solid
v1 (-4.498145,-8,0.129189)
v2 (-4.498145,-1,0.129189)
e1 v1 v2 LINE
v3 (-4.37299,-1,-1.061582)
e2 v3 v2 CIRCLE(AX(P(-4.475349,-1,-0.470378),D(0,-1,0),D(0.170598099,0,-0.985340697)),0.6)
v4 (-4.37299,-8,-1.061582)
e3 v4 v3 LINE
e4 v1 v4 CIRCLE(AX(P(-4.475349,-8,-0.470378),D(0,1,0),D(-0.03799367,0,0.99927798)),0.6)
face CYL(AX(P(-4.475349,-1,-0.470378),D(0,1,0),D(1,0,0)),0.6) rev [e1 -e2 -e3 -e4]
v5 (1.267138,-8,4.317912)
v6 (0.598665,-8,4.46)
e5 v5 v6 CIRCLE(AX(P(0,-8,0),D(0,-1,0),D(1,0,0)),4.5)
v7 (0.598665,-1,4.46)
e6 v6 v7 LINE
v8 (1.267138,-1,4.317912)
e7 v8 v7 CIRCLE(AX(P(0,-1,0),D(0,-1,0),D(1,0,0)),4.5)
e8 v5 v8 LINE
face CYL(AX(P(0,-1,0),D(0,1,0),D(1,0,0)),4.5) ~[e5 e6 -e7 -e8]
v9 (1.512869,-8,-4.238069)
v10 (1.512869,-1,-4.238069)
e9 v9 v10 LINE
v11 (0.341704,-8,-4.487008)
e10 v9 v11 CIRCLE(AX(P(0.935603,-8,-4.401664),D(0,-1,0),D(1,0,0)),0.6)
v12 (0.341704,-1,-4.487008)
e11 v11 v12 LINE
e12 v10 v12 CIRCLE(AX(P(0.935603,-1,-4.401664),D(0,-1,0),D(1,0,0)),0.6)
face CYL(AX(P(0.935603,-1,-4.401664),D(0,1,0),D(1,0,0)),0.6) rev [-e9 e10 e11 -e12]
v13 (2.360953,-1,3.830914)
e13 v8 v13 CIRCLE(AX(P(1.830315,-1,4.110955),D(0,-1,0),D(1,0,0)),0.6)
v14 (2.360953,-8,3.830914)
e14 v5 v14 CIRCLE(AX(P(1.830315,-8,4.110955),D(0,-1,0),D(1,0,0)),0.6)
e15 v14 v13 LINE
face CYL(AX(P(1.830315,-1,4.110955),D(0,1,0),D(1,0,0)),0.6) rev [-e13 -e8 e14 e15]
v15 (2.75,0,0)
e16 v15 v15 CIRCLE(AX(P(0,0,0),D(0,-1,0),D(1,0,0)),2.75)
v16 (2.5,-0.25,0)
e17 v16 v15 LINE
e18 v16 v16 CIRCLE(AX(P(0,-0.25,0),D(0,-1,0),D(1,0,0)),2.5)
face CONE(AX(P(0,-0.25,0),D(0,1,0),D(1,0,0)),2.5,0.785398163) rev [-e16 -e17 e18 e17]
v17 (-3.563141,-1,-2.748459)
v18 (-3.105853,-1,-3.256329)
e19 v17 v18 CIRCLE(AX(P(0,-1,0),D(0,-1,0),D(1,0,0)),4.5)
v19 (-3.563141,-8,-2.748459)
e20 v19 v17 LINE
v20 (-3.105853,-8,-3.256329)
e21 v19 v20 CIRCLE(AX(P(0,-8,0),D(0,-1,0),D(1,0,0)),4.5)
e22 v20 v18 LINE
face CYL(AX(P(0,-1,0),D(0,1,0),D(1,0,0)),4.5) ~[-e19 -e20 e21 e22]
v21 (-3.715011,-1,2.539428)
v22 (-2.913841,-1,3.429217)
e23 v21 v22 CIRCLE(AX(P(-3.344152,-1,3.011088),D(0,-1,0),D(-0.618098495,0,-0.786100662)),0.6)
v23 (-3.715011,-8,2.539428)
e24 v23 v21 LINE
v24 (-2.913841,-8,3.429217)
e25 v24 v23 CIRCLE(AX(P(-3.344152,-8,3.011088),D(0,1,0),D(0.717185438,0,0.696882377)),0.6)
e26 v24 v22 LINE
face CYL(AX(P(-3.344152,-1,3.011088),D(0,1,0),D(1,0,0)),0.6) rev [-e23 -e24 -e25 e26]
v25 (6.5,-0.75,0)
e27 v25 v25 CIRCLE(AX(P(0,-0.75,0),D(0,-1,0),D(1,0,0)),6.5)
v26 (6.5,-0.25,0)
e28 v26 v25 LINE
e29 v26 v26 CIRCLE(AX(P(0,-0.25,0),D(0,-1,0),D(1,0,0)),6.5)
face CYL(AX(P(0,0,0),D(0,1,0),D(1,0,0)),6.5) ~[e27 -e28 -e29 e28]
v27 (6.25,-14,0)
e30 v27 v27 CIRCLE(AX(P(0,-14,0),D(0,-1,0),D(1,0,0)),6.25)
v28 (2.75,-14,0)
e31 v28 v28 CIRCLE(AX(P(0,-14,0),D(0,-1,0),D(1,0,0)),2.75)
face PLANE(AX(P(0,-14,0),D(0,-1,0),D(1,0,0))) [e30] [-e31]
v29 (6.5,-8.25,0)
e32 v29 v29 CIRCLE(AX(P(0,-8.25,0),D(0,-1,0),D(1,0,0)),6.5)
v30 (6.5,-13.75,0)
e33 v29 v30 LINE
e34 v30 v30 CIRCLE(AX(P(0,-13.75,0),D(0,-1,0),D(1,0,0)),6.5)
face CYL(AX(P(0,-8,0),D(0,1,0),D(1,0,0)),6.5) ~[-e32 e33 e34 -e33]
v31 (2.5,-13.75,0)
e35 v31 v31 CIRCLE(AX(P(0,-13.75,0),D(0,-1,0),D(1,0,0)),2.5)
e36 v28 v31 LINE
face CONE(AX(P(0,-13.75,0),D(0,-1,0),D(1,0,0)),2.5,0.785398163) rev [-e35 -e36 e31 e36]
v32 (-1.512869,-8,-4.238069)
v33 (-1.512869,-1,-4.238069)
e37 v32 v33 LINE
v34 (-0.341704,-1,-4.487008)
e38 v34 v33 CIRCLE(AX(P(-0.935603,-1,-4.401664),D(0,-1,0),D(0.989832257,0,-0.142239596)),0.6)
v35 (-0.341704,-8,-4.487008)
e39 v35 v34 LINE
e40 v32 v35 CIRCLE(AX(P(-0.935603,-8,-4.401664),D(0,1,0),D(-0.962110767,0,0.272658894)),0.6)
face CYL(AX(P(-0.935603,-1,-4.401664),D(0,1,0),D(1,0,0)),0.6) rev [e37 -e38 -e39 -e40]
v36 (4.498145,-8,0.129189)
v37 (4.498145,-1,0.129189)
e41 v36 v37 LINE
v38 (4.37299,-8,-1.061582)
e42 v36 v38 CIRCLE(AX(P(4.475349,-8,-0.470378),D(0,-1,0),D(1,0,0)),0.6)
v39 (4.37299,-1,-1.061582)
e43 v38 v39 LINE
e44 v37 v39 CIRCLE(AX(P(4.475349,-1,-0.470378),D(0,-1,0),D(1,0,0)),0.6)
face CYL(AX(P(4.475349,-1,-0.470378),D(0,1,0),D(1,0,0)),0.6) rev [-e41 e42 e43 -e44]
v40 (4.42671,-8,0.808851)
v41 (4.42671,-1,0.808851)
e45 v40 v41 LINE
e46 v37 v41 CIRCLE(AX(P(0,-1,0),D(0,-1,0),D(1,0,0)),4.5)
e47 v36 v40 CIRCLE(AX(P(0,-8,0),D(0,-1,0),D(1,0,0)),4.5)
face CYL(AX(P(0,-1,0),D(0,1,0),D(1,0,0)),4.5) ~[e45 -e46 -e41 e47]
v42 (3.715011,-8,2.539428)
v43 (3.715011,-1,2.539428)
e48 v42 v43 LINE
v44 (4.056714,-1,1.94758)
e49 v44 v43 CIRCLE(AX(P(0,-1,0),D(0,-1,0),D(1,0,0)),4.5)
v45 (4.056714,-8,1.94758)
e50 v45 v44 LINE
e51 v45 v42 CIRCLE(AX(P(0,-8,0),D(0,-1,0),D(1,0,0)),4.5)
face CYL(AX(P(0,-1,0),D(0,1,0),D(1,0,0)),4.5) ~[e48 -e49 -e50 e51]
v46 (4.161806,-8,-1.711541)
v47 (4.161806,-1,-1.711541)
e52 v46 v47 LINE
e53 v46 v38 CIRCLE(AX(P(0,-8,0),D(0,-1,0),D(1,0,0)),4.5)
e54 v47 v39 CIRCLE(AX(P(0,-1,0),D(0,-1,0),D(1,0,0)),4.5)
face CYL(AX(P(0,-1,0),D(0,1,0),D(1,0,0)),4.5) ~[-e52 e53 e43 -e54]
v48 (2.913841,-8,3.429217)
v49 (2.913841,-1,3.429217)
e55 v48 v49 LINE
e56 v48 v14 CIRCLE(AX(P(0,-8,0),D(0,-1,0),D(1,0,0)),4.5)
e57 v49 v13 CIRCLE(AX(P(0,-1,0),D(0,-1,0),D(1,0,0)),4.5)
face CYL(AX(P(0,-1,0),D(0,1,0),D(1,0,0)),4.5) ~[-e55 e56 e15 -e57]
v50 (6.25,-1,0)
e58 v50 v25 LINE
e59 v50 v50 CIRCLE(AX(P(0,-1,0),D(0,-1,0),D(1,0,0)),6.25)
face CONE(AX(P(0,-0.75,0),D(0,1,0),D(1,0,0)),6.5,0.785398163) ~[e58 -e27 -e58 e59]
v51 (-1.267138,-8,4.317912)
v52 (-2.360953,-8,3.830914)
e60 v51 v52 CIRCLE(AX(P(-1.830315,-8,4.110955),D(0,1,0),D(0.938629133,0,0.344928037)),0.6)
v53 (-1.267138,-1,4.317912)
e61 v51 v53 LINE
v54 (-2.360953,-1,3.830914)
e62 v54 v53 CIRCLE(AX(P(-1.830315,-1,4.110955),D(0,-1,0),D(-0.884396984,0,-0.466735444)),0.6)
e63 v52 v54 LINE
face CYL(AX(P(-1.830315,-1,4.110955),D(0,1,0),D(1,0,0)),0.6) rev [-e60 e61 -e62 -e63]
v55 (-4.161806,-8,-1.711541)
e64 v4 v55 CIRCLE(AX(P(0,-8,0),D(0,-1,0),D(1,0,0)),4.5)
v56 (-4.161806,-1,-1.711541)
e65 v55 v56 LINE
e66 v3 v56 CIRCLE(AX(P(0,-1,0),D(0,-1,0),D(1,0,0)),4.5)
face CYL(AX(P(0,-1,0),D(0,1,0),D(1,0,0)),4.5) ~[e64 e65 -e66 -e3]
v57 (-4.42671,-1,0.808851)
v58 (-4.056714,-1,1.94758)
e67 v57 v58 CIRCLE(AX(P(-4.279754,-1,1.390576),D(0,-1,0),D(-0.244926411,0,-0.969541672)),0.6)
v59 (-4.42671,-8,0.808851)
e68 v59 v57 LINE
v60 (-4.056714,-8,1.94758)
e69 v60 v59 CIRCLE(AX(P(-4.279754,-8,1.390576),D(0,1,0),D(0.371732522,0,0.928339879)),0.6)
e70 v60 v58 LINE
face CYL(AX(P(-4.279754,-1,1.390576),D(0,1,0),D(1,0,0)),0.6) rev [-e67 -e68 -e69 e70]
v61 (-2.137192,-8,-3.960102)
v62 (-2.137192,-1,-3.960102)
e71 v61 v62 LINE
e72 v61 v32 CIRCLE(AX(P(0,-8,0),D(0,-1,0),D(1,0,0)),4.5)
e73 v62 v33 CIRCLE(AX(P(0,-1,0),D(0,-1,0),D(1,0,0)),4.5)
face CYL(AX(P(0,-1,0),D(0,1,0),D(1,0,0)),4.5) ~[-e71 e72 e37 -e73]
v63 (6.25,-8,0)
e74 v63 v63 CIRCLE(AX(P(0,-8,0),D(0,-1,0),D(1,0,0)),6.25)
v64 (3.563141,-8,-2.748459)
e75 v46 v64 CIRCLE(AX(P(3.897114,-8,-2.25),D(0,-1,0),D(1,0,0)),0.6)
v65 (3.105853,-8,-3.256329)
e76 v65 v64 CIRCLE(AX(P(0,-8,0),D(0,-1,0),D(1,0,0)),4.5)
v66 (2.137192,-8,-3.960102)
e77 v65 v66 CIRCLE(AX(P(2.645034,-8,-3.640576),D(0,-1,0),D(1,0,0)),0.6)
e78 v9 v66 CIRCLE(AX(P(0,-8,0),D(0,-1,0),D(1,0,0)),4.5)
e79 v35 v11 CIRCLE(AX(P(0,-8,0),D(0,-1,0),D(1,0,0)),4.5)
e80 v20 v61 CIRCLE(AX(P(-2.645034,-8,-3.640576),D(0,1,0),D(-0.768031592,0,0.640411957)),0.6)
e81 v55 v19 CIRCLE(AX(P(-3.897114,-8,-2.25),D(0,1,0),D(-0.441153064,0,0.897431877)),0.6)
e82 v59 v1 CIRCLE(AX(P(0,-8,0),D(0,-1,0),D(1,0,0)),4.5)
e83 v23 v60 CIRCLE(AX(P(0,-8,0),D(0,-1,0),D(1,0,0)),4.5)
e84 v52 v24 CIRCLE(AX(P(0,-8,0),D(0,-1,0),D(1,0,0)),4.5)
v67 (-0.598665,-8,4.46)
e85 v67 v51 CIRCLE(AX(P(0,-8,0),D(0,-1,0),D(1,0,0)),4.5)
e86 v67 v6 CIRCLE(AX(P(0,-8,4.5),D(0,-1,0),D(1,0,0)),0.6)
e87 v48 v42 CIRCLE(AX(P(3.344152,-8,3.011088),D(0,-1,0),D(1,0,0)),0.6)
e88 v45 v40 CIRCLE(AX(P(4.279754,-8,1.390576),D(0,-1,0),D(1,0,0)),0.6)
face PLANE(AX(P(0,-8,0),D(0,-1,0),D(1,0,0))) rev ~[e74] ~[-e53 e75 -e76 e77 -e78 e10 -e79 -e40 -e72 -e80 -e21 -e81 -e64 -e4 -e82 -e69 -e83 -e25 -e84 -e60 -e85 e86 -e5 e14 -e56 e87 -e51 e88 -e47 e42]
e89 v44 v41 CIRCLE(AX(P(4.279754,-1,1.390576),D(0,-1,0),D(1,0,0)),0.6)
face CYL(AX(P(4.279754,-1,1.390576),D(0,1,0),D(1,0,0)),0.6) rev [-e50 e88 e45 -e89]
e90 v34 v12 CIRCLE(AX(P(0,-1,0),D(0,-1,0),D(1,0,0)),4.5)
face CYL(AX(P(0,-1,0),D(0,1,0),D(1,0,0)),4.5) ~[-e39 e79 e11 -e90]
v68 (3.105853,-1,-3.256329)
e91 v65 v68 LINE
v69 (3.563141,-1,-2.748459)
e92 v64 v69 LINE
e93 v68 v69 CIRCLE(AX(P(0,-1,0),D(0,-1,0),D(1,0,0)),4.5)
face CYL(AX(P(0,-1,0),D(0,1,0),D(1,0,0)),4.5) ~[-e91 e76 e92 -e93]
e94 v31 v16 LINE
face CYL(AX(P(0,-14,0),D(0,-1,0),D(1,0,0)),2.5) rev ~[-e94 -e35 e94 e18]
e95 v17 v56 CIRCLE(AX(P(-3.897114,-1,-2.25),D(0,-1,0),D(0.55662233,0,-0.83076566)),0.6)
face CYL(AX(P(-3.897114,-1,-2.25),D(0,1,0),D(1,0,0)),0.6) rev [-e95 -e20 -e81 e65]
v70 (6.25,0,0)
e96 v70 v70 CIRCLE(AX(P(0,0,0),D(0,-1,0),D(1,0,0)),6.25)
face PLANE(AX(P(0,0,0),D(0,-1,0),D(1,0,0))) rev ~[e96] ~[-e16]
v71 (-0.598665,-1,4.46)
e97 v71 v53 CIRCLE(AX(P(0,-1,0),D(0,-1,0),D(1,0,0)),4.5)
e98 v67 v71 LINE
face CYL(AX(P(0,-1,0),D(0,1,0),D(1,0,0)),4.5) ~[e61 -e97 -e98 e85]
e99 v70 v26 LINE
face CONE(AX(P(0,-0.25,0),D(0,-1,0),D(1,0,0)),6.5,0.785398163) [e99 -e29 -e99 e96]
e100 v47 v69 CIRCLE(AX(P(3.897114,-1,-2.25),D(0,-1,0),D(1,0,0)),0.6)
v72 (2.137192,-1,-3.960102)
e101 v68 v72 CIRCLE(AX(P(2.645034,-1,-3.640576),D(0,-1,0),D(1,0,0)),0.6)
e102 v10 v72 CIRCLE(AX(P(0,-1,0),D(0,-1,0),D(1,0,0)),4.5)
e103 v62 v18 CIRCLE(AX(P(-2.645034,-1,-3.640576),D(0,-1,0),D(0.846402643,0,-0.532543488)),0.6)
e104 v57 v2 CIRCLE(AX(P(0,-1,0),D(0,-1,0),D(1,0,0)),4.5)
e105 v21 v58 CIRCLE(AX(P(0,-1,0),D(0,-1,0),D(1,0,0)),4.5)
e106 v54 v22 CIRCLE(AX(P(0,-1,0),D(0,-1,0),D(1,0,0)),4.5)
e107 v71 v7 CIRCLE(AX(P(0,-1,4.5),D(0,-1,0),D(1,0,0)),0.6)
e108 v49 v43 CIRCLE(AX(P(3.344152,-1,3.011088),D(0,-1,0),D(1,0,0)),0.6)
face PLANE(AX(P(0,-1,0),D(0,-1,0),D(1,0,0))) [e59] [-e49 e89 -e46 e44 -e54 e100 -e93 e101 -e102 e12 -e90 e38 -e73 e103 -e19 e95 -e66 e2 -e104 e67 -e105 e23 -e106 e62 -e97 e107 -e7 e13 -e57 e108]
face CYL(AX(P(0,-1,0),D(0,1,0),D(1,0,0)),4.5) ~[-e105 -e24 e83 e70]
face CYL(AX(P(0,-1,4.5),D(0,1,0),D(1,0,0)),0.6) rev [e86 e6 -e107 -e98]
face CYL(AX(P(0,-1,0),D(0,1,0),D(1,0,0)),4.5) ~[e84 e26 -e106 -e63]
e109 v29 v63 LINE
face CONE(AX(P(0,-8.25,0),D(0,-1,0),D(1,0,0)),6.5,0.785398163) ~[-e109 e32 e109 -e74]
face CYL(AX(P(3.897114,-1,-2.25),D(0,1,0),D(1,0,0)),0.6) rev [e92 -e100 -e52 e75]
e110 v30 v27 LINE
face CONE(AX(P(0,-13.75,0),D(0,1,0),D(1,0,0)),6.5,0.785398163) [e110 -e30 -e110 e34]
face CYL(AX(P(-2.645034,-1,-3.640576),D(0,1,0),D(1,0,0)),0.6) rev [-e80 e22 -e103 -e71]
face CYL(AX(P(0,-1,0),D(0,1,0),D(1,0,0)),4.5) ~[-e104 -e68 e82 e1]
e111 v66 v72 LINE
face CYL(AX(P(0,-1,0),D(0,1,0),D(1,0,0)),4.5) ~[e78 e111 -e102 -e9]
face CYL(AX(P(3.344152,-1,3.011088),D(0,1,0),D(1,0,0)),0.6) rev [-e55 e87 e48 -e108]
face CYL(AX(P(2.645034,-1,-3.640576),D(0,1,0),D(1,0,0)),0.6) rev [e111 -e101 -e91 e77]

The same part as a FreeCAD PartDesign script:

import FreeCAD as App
import Part
import Sketcher


def edges_at(feature, points):
    """Names of the edges that pass closest to the given points."""
    edges = feature.Shape.Edges
    near = lambda p: min(range(len(edges)), key=lambda i: edges[i].distToShape(Part.Vertex(*p))[0])
    return sorted({f"Edge{near(p) + 1}" for p in points})

doc = App.newDocument("Part")
body = doc.addObject("PartDesign::Body", "Body")

sketch1 = doc.addObject("Sketcher::SketchObject", "Sketch")
body.addObject(sketch1)
sketch1.AttachmentSupport = (doc.XZ_Plane, [""])
sketch1.MapMode = "FlatFace"
sketch1.addGeometry(Part.Circle(App.Vector(0, 0, 0), App.Vector(0, 0, 1), 6.5), False)
sketch1.addConstraint(Sketcher.Constraint("Coincident", 0, 3, -1, 1))
sketch1.addConstraint(Sketcher.Constraint("Diameter", 0, 13.0))
pad1 = doc.addObject("PartDesign::Pad", "Pad")
body.addObject(pad1)
pad1.Profile = sketch1
pad1.Length = 1

sketch2 = doc.addObject("Sketcher::SketchObject", "Sketch001")
body.addObject(sketch2)
sketch2.AttachmentSupport = (doc.XZ_Plane, [""])
sketch2.MapMode = "FlatFace"
sketch2.AttachmentOffset = App.Placement(App.Vector(0, 0, 1), App.Rotation())
sketch2.addGeometry(Part.Circle(App.Vector(0, 0, 0), App.Vector(0, 0, 1), 4.5), False)
sketch2.addConstraint(Sketcher.Constraint("Coincident", 0, 3, -1, 1))
sketch2.addConstraint(Sketcher.Constraint("Diameter", 0, 9.0))
pad2 = doc.addObject("PartDesign::Pad", "Pad001")
body.addObject(pad2)
pad2.Profile = sketch2
pad2.Length = 7

sketch3 = doc.addObject("Sketcher::SketchObject", "Sketch002")
body.addObject(sketch3)
sketch3.AttachmentSupport = (doc.XZ_Plane, [""])
sketch3.MapMode = "FlatFace"
sketch3.AttachmentOffset = App.Placement(App.Vector(0, 0, 8), App.Rotation())
sketch3.addGeometry(Part.Circle(App.Vector(0, 0, 0), App.Vector(0, 0, 1), 6.5), False)
sketch3.addConstraint(Sketcher.Constraint("Coincident", 0, 3, -1, 1))
sketch3.addConstraint(Sketcher.Constraint("Diameter", 0, 13.0))
pad3 = doc.addObject("PartDesign::Pad", "Pad002")
body.addObject(pad3)
pad3.Profile = sketch3
pad3.Length = 6

sketch4 = doc.addObject("Sketcher::SketchObject", "Sketch003")
body.addObject(sketch4)
sketch4.AttachmentSupport = (doc.XZ_Plane, [""])
sketch4.MapMode = "FlatFace"
sketch4.AttachmentOffset = App.Placement(App.Vector(0, 0, 1), App.Rotation())
sketch4.addGeometry(Part.Circle(App.Vector(0, 4.5, 0), App.Vector(0, 0, 1), 0.6), False)
sketch4.addGeometry(Part.Circle(App.Vector(-1.830315, 4.110955, 0), App.Vector(0, 0, 1), 0.6), False)
sketch4.addGeometry(Part.Circle(App.Vector(-3.344152, 3.011088, 0), App.Vector(0, 0, 1), 0.6), False)
sketch4.addGeometry(Part.Circle(App.Vector(-4.279754, 1.390576, 0), App.Vector(0, 0, 1), 0.6), False)
sketch4.addGeometry(Part.Circle(App.Vector(-4.475349, -0.470378, 0), App.Vector(0, 0, 1), 0.6), False)
sketch4.addGeometry(Part.Circle(App.Vector(-3.897114, -2.25, 0), App.Vector(0, 0, 1), 0.6), False)
sketch4.addGeometry(Part.Circle(App.Vector(-2.645034, -3.640576, 0), App.Vector(0, 0, 1), 0.6), False)
sketch4.addGeometry(Part.Circle(App.Vector(-0.935603, -4.401664, 0), App.Vector(0, 0, 1), 0.6), False)
sketch4.addGeometry(Part.Circle(App.Vector(0.935603, -4.401664, 0), App.Vector(0, 0, 1), 0.6), False)
sketch4.addGeometry(Part.Circle(App.Vector(2.645034, -3.640576, 0), App.Vector(0, 0, 1), 0.6), False)
sketch4.addGeometry(Part.Circle(App.Vector(3.897114, -2.25, 0), App.Vector(0, 0, 1), 0.6), False)
sketch4.addGeometry(Part.Circle(App.Vector(4.475349, -0.470378, 0), App.Vector(0, 0, 1), 0.6), False)
sketch4.addGeometry(Part.Circle(App.Vector(4.279754, 1.390576, 0), App.Vector(0, 0, 1), 0.6), False)
sketch4.addGeometry(Part.Circle(App.Vector(3.344152, 3.011088, 0), App.Vector(0, 0, 1), 0.6), False)
sketch4.addGeometry(Part.Circle(App.Vector(1.830315, 4.110955, 0), App.Vector(0, 0, 1), 0.6), False)
sketch4.addConstraint(Sketcher.Constraint("Equal", 0, 1))
sketch4.addConstraint(Sketcher.Constraint("Equal", 1, 2))
sketch4.addConstraint(Sketcher.Constraint("Equal", 2, 3))
sketch4.addConstraint(Sketcher.Constraint("Equal", 3, 4))
sketch4.addConstraint(Sketcher.Constraint("Equal", 4, 5))
sketch4.addConstraint(Sketcher.Constraint("Equal", 5, 6))
sketch4.addConstraint(Sketcher.Constraint("Equal", 6, 7))
sketch4.addConstraint(Sketcher.Constraint("Equal", 7, 8))
sketch4.addConstraint(Sketcher.Constraint("Equal", 8, 9))
sketch4.addConstraint(Sketcher.Constraint("Equal", 9, 10))
sketch4.addConstraint(Sketcher.Constraint("Equal", 10, 11))
sketch4.addConstraint(Sketcher.Constraint("Equal", 11, 12))
sketch4.addConstraint(Sketcher.Constraint("Equal", 12, 13))
sketch4.addConstraint(Sketcher.Constraint("Equal", 13, 14))
sketch4.addConstraint(Sketcher.Constraint("Symmetric", 7, 3, 8, 3, -2))
sketch4.addConstraint(Sketcher.Constraint("Symmetric", 6, 3, 9, 3, -2))
sketch4.addConstraint(Sketcher.Constraint("Symmetric", 5, 3, 10, 3, -2))
sketch4.addConstraint(Sketcher.Constraint("Symmetric", 4, 3, 11, 3, -2))
sketch4.addConstraint(Sketcher.Constraint("Symmetric", 3, 3, 12, 3, -2))
sketch4.addConstraint(Sketcher.Constraint("Symmetric", 2, 3, 13, 3, -2))
sketch4.addConstraint(Sketcher.Constraint("Symmetric", 1, 3, 14, 3, -2))
sketch4.addConstraint(Sketcher.Constraint("PointOnObject", 0, 3, -2))
sketch4.addConstraint(Sketcher.Constraint("Diameter", 0, 1.2))
sketch4.addConstraint(Sketcher.Constraint("DistanceY", -1, 1, 0, 3, 4.5))
sketch4.addConstraint(Sketcher.Constraint("DistanceY", 5, 3, -1, 1, 2.25))
sketch4.addConstraint(Sketcher.Constraint("DistanceX", 3, 3, 2, 3, 0.935602))
sketch4.addConstraint(Sketcher.Constraint("DistanceX", 5, 3, 1, 3, 2.066799))
sketch4.addConstraint(Sketcher.Constraint("DistanceX", 2, 3, -1, 1, 3.344152))
sketch4.addConstraint(Sketcher.Constraint("DistanceY", -1, 1, 2, 3, 3.011088))
sketch4.addConstraint(Sketcher.Constraint("DistanceX", 4, 3, -1, 1, 4.475349))
sketch4.addConstraint(Sketcher.Constraint("DistanceX", 3, 3, 1, 3, 2.449439))
sketch4.addConstraint(Sketcher.Constraint("DistanceY", 3, 3, 1, 3, 2.720379))
sketch4.addConstraint(Sketcher.Constraint("DistanceY", 4, 3, 0, 3, 4.970378))
sketch4.addConstraint(Sketcher.Constraint("DistanceX", 5, 3, 6, 3, 1.25208))
sketch4.addConstraint(Sketcher.Constraint("DistanceY", 6, 3, 3, 3, 5.031152))
sketch4.addConstraint(Sketcher.Constraint("DistanceX", 6, 3, 7, 3, 1.709431))
sketch4.addConstraint(Sketcher.Constraint("DistanceY", 7, 3, 6, 3, 0.761088))
sketch4.addConstraint(Sketcher.Constraint("DistanceY", -1, 1, 1, 3, 4.110955))
pocket1 = doc.addObject("PartDesign::Pocket", "Pocket")
body.addObject(pocket1)
pocket1.Profile = sketch4
pocket1.Length = 7
pocket1.Reversed = True

sketch5 = doc.addObject("Sketcher::SketchObject", "Sketch004")
body.addObject(sketch5)
sketch5.AttachmentSupport = (doc.XZ_Plane, [""])
sketch5.MapMode = "FlatFace"
sketch5.AttachmentOffset = App.Placement(App.Vector(0, 0, 14), App.Rotation())
sketch5.addGeometry(Part.Circle(App.Vector(0, 0, 0), App.Vector(0, 0, 1), 2.5), False)
sketch5.addConstraint(Sketcher.Constraint("Coincident", 0, 3, -1, 1))
sketch5.addConstraint(Sketcher.Constraint("Diameter", 0, 5.0))
pocket2 = doc.addObject("PartDesign::Pocket", "Pocket001")
body.addObject(pocket2)
pocket2.Profile = sketch5
pocket2.Type = "ThroughAll"
doc.recompute()

chamfer = doc.addObject("PartDesign::Chamfer", "Chamfer")
body.addObject(chamfer)
chamfer.Base = (pocket2, edges_at(pocket2, [
    (6.5, -11, 0),
    (-6.5, -8, 0),
    (-6.5, -14, 0),
    (6.5, -0.5, 0),
    (-6.5, 0, 0),
    (-6.5, -1, 0),
    (-2.5, -14, 0),
    (2.5, -7, 0),
    (-2.5, 0, 0),
]))
chamfer.Size = 0.25

doc.recompute()
